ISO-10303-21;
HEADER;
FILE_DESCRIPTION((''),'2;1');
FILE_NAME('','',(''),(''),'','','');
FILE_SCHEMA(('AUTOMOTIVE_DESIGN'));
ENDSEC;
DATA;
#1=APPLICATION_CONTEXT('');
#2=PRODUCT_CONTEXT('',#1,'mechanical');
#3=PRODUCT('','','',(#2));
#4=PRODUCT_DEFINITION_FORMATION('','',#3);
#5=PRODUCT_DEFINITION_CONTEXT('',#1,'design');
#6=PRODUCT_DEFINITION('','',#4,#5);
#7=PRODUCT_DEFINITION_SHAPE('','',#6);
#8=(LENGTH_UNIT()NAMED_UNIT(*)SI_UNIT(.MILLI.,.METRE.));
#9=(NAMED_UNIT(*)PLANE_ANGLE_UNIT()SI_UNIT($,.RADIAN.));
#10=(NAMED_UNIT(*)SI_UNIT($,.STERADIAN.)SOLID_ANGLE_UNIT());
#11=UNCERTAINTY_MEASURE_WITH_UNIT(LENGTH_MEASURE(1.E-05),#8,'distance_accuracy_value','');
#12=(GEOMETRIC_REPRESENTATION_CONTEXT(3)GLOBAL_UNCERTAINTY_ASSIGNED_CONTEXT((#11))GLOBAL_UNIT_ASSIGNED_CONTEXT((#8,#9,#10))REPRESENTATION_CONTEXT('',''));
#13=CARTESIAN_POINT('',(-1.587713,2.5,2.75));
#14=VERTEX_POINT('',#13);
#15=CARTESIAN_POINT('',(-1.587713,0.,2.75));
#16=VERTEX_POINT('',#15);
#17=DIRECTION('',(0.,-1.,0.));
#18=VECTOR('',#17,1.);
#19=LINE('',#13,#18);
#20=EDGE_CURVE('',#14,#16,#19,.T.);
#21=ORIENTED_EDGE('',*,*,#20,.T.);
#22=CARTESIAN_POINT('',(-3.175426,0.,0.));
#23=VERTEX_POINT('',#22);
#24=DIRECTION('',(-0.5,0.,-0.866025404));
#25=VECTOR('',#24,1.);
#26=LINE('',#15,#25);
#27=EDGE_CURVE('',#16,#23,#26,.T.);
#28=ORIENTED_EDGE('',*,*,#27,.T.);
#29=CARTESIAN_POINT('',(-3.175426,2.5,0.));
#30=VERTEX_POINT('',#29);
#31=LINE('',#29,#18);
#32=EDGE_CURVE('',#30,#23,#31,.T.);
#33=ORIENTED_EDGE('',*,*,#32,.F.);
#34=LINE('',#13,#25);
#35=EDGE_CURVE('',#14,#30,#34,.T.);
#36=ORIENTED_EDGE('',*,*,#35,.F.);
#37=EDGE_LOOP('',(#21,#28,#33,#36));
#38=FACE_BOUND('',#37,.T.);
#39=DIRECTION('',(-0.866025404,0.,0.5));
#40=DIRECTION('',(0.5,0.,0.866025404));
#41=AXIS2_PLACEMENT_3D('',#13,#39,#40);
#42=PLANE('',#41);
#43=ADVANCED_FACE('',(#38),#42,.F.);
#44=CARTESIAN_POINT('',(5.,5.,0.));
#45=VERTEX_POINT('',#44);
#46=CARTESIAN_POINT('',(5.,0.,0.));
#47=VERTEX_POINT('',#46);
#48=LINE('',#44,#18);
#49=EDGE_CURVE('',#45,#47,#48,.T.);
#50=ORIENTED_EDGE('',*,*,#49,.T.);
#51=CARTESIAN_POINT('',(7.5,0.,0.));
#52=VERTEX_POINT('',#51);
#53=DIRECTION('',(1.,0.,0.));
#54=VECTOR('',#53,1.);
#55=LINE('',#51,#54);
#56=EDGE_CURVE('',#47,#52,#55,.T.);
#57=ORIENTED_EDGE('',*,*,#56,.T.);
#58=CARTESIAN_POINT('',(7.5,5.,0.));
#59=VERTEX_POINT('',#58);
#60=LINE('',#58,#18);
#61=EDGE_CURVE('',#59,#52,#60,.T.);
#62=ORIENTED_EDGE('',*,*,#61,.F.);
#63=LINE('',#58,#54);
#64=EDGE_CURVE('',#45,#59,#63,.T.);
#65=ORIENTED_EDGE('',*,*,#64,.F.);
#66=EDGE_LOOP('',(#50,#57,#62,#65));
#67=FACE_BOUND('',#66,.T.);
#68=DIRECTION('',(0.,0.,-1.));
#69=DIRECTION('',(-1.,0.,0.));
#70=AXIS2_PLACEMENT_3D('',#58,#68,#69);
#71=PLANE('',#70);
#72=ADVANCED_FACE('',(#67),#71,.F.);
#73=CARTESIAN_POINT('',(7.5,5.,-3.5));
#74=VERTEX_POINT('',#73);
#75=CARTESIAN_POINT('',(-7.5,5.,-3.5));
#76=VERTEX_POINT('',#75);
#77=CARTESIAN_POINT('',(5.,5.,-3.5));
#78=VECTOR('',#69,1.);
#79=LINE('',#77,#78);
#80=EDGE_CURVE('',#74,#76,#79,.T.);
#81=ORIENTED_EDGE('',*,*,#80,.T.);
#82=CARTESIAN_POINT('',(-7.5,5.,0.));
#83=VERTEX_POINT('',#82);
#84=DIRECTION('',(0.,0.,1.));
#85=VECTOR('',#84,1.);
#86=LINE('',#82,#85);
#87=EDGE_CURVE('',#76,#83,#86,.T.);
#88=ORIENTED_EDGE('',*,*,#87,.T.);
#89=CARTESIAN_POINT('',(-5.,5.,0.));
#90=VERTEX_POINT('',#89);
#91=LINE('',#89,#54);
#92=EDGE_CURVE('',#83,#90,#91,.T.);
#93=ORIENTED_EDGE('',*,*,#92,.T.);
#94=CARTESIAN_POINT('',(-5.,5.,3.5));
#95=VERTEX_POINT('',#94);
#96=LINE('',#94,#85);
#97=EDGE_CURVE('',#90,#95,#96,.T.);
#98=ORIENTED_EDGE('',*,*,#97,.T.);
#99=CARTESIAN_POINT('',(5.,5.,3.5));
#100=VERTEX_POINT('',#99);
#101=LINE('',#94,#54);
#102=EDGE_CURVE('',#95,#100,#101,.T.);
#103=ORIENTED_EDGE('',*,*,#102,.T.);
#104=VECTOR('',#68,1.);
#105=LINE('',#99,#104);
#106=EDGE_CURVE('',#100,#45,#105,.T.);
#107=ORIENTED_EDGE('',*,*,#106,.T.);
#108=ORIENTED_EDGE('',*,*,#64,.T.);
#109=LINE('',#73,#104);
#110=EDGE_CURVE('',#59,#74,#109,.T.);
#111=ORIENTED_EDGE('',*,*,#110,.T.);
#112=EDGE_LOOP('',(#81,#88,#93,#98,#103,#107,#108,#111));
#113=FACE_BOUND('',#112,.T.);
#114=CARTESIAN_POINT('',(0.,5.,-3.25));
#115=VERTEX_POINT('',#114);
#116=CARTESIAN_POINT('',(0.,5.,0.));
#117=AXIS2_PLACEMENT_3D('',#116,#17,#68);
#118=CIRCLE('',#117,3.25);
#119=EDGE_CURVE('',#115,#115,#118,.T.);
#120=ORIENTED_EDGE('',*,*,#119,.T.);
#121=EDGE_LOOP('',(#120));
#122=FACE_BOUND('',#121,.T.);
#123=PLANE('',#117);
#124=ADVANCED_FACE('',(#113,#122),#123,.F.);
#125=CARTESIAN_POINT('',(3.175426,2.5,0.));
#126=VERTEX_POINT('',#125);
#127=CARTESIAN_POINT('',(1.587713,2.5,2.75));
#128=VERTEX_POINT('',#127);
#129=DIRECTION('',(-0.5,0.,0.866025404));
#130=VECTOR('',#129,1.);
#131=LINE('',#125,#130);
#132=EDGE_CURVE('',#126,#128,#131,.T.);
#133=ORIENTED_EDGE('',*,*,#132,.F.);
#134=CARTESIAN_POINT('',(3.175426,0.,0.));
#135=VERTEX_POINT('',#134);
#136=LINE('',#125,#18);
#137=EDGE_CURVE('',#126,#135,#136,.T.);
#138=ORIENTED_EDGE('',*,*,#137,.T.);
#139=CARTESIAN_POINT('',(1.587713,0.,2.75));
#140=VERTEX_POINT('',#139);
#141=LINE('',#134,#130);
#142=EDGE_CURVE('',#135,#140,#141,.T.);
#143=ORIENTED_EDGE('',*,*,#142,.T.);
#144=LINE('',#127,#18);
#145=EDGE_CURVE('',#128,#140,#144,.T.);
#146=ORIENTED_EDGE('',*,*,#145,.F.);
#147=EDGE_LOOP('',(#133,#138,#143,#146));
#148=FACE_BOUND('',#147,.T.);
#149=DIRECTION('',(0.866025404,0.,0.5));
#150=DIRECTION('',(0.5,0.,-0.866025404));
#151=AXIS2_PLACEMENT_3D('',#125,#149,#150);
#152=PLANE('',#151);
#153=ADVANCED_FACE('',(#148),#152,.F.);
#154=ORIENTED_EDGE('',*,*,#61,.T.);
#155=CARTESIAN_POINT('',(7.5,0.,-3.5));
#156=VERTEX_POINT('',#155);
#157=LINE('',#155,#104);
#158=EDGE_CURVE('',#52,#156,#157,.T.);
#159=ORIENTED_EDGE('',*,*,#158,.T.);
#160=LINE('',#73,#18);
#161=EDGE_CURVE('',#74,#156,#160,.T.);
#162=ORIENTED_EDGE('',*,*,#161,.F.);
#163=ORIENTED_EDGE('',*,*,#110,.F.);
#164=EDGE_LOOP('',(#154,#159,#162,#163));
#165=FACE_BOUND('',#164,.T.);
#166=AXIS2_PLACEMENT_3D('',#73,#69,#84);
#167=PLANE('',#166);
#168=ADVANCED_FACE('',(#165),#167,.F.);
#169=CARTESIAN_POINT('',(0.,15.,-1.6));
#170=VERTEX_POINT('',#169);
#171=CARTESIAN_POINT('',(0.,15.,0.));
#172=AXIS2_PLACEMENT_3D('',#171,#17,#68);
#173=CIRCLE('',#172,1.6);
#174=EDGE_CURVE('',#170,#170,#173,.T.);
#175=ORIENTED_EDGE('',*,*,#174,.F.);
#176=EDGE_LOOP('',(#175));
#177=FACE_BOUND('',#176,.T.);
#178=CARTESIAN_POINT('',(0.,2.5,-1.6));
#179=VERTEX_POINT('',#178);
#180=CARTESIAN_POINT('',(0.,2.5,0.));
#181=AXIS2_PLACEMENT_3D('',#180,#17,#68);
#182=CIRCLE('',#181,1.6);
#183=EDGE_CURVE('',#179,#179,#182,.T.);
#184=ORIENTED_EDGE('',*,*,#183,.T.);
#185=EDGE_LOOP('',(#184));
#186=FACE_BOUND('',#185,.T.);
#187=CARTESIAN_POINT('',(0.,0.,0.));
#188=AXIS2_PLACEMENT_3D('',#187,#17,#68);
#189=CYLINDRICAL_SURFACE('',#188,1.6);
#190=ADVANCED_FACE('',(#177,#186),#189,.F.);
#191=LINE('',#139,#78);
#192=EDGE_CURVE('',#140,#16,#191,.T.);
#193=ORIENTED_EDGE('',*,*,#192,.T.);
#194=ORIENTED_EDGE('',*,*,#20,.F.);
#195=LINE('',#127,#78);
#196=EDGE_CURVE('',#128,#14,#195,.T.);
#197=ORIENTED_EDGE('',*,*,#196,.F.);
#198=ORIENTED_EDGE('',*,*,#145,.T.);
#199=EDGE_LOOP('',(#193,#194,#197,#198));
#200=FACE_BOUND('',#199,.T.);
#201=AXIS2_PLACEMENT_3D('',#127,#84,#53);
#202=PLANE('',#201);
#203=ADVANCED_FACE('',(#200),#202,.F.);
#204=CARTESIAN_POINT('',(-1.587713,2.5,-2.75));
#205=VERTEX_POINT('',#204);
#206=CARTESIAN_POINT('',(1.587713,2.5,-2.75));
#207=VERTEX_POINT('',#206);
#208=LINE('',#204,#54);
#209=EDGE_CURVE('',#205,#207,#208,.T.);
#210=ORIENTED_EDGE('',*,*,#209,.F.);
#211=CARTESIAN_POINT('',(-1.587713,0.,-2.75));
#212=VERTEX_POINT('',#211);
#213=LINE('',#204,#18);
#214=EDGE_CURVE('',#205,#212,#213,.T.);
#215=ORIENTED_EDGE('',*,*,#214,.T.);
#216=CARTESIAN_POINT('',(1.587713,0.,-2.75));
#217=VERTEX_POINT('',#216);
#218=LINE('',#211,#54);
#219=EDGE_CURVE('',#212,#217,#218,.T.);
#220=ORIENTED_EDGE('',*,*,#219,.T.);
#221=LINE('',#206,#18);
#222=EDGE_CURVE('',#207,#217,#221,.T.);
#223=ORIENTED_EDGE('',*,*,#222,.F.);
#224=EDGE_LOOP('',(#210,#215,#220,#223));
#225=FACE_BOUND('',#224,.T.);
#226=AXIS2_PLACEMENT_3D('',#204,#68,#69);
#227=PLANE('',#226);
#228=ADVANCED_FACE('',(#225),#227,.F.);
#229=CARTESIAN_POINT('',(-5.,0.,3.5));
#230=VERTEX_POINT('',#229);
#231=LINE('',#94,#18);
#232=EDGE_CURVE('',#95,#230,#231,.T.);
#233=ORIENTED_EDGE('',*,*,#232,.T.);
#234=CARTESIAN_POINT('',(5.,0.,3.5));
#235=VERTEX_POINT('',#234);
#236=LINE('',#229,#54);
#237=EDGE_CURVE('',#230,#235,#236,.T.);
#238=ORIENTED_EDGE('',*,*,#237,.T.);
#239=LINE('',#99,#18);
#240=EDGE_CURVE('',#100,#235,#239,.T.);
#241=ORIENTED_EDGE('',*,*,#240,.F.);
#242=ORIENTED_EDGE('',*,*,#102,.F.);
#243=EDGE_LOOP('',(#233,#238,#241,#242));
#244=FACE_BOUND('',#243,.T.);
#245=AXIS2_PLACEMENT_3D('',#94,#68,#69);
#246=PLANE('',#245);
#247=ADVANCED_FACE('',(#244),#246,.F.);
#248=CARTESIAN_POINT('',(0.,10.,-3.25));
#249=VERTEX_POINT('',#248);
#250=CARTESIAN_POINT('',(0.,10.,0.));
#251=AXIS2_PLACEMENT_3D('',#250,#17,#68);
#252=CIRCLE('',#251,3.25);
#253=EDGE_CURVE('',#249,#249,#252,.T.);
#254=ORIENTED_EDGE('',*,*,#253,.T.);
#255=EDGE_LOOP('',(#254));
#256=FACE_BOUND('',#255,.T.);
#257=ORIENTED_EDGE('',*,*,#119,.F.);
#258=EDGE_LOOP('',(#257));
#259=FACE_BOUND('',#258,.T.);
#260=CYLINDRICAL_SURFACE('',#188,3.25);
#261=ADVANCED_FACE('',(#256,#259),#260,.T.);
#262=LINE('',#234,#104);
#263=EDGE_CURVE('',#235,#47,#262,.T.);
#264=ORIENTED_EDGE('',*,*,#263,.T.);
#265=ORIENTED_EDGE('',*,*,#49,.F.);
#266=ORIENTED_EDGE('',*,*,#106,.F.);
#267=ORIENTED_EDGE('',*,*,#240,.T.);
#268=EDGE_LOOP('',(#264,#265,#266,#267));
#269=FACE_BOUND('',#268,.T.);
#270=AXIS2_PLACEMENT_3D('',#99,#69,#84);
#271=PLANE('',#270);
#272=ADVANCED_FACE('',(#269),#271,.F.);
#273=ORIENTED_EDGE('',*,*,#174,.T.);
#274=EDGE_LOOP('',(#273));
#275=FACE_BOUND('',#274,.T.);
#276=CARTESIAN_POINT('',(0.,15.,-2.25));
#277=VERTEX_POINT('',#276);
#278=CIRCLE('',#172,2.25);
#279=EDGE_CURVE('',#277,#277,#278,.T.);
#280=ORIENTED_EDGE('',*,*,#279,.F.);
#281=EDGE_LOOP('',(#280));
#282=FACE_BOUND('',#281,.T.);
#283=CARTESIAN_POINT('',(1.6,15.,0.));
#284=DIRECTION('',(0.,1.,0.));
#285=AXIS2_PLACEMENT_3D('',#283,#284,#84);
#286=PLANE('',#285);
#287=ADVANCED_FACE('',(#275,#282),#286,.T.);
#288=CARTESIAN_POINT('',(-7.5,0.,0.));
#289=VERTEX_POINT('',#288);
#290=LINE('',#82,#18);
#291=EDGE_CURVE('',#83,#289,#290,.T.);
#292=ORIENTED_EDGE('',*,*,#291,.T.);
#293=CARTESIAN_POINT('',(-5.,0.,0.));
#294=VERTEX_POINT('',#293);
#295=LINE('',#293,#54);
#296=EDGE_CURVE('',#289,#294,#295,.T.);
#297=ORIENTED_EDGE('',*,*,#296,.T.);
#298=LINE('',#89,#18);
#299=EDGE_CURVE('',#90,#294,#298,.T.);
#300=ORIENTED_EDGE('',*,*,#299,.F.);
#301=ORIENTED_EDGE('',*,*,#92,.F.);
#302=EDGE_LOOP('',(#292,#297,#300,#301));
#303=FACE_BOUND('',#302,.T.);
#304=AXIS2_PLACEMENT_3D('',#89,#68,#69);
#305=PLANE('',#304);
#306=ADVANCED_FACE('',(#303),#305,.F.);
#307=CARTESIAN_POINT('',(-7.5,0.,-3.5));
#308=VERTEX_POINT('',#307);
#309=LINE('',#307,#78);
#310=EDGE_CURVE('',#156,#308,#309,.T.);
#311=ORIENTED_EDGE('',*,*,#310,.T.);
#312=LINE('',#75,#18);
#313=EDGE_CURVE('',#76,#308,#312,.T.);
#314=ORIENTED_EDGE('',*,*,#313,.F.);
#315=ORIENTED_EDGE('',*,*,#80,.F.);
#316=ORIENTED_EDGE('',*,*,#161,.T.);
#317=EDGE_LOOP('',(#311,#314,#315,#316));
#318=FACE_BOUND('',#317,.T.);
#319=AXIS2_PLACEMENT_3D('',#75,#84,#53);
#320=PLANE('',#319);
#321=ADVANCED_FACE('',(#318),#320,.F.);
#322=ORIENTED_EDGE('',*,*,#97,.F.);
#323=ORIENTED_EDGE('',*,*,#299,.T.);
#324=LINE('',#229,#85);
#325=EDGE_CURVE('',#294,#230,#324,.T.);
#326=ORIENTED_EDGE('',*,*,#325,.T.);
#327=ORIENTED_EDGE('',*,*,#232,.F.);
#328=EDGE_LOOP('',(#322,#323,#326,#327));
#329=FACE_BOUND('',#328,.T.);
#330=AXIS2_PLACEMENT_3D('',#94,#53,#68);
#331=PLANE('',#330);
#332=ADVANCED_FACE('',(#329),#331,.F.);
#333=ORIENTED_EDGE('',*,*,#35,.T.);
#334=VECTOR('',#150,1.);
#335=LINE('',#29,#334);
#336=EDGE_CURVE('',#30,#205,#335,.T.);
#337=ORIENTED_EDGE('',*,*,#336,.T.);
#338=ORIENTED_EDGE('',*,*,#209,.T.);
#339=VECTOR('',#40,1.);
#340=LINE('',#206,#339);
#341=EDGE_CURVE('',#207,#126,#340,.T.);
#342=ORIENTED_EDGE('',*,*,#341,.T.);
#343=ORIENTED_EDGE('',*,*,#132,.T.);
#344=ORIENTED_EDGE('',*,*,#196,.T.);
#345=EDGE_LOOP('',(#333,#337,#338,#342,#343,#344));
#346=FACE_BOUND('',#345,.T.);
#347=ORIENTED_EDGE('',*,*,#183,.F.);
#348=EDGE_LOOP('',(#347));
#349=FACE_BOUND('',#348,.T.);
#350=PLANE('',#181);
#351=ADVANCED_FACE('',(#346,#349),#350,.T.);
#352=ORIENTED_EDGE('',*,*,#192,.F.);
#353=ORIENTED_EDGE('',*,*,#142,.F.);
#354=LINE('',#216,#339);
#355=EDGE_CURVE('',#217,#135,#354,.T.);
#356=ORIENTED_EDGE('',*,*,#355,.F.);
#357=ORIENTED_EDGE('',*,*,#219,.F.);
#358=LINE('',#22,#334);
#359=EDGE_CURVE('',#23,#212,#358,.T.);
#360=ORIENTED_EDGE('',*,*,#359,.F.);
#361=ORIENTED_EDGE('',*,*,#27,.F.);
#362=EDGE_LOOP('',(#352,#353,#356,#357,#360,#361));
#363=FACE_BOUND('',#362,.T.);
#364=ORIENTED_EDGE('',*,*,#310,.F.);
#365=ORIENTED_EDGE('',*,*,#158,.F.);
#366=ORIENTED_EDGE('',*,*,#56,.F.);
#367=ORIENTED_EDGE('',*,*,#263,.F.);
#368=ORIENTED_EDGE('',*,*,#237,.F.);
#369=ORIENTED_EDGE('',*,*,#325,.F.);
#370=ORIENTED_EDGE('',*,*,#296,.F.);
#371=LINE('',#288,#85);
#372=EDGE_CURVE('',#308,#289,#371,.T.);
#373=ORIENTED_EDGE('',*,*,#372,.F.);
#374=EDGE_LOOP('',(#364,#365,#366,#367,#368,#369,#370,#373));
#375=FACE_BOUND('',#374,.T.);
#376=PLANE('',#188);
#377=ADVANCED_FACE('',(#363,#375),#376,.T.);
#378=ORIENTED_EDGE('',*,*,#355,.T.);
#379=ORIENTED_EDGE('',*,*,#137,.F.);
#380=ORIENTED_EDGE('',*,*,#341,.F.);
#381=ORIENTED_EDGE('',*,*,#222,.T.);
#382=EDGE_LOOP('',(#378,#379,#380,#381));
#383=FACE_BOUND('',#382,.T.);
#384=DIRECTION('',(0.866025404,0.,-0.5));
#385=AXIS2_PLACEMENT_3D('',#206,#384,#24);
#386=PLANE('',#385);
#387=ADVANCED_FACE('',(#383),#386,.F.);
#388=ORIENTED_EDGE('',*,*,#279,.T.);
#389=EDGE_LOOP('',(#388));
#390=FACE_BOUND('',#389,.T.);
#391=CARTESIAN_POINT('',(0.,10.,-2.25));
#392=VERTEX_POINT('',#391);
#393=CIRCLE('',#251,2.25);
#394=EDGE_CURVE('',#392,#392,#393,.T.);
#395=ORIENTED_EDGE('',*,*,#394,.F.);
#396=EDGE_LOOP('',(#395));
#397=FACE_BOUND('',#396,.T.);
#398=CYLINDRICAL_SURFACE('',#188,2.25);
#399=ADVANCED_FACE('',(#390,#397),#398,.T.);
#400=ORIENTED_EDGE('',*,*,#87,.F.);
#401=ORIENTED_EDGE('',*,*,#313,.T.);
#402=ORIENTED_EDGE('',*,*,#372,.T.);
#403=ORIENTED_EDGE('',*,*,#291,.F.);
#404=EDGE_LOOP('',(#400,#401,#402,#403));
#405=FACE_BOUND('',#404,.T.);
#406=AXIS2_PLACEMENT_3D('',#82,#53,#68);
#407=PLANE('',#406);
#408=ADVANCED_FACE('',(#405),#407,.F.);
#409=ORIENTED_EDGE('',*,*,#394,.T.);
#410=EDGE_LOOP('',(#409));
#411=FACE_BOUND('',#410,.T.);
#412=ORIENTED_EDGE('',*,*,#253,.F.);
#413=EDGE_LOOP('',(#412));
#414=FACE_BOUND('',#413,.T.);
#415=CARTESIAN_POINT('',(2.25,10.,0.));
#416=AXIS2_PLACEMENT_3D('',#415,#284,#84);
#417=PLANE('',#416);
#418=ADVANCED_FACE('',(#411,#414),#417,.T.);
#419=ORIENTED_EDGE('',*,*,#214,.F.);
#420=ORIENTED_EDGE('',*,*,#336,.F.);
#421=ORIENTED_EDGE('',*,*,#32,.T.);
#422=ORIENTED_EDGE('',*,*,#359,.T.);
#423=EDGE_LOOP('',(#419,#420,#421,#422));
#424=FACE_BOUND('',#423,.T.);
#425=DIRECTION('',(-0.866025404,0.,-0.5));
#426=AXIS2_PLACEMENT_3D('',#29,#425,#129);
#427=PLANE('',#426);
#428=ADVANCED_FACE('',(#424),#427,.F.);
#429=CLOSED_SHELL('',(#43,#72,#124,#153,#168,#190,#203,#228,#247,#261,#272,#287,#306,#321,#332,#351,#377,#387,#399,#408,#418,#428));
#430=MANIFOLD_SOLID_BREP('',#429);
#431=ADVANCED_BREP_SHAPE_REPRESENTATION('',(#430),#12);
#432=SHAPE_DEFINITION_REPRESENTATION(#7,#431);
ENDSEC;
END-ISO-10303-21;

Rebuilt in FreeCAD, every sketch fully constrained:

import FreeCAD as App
import Part
import Sketcher
Q = App.Units.Quantity

doc = App.newDocument("Part")
body = doc.addObject("PartDesign::Body", "Body")

# Sketch on XZ plane
sketch1 = body.newObject("Sketcher::SketchObject", "Sketch")
sketch1.AttachmentSupport = (doc.getObject("XZ_Plane"), [""])
sketch1.MapMode = "FlatFace"
sketch1.addGeometry(Part.LineSegment(App.Vector(-7.5, 0, 0), App.Vector(-5, 0, 0)), False)
sketch1.addGeometry(Part.LineSegment(App.Vector(-5, 0, 0), App.Vector(-5, 3.5, 0)), False)
sketch1.addGeometry(Part.LineSegment(App.Vector(-5, 3.5, 0), App.Vector(5, 3.5, 0)), False)
sketch1.addGeometry(Part.LineSegment(App.Vector(5, 3.5, 0), App.Vector(5, 0, 0)), False)
sketch1.addGeometry(Part.LineSegment(App.Vector(5, 0, 0), App.Vector(7.5, 0, 0)), False)
sketch1.addGeometry(Part.LineSegment(App.Vector(7.5, 0, 0), App.Vector(7.5, -3.5, 0)), False)
sketch1.addGeometry(Part.LineSegment(App.Vector(7.5, -3.5, 0), App.Vector(-7.5, -3.5, 0)), False)
sketch1.addGeometry(Part.LineSegment(App.Vector(-7.5, -3.5, 0), App.Vector(-7.5, 0, 0)), False)
sketch1.addConstraint(Sketcher.Constraint("Coincident", 0, 2, 1, 1))
sketch1.addConstraint(Sketcher.Constraint("Coincident", 1, 2, 2, 1))
sketch1.addConstraint(Sketcher.Constraint("Coincident", 2, 2, 3, 1))
sketch1.addConstraint(Sketcher.Constraint("Coincident", 3, 2, 4, 1))
sketch1.addConstraint(Sketcher.Constraint("Coincident", 4, 2, 5, 1))
sketch1.addConstraint(Sketcher.Constraint("Coincident", 5, 2, 6, 1))
sketch1.addConstraint(Sketcher.Constraint("Coincident", 6, 2, 7, 1))
sketch1.addConstraint(Sketcher.Constraint("Coincident", 7, 2, 0, 1))
sketch1.addConstraint(Sketcher.Constraint("Horizontal", 0))
sketch1.addConstraint(Sketcher.Constraint("Vertical", 1))
sketch1.addConstraint(Sketcher.Constraint("Horizontal", 2))
sketch1.addConstraint(Sketcher.Constraint("Vertical", 3))
sketch1.addConstraint(Sketcher.Constraint("Horizontal", 4))
sketch1.addConstraint(Sketcher.Constraint("Vertical", 5))
sketch1.addConstraint(Sketcher.Constraint("Horizontal", 6))
sketch1.addConstraint(Sketcher.Constraint("Vertical", 7))
sketch1.addConstraint(Sketcher.Constraint("Symmetric", 0, 2, 3, 2, -1, 1))
sketch1.addConstraint(Sketcher.Constraint("Symmetric", 4, 2, 7, 2, -2))
sketch1.addConstraint(Sketcher.Constraint("Equal", 3, 5))
sketch1.addConstraint(Sketcher.Constraint("DistanceX", 2, 1, 2, 2, 10.0))
sketch1.addConstraint(Sketcher.Constraint("DistanceX", 6, 2, 6, 1, 15.0))
sketch1.addConstraint(Sketcher.Constraint("DistanceY", 1, 1, 1, 2, 3.5))
pad1 = body.newObject("PartDesign::Pad", "Pad")
pad1.Profile = sketch1
pad1.Length = 5
pad1.Reversed = True

# Sketch on XZ plane
sketch2 = body.newObject("Sketcher::SketchObject", "Sketch001")
sketch2.AttachmentSupport = (doc.getObject("XZ_Plane"), [""])
sketch2.MapMode = "FlatFace"
sketch2.addGeometry(Part.LineSegment(App.Vector(3.175426, 0, 0), App.Vector(1.587713, 2.75, 0)), False)
sketch2.addGeometry(Part.LineSegment(App.Vector(1.587713, 2.75, 0), App.Vector(-1.587713, 2.75, 0)), False)
sketch2.addGeometry(Part.LineSegment(App.Vector(-1.587713, 2.75, 0), App.Vector(-3.175426, 0, 0)), False)
sketch2.addGeometry(Part.LineSegment(App.Vector(-3.175426, 0, 0), App.Vector(-1.587713, -2.75, 0)), False)
sketch2.addGeometry(Part.LineSegment(App.Vector(-1.587713, -2.75, 0), App.Vector(1.587713, -2.75, 0)), False)
sketch2.addGeometry(Part.LineSegment(App.Vector(1.587713, -2.75, 0), App.Vector(3.175426, 0, 0)), False)
sketch2.addConstraint(Sketcher.Constraint("Coincident", 0, 2, 1, 1))
sketch2.addConstraint(Sketcher.Constraint("Coincident", 1, 2, 2, 1))
sketch2.addConstraint(Sketcher.Constraint("Coincident", 2, 2, 3, 1))
sketch2.addConstraint(Sketcher.Constraint("Coincident", 3, 2, 4, 1))
sketch2.addConstraint(Sketcher.Constraint("Coincident", 4, 2, 5, 1))
sketch2.addConstraint(Sketcher.Constraint("Coincident", 5, 2, 0, 1))
sketch2.addConstraint(Sketcher.Constraint("Horizontal", 1))
sketch2.addConstraint(Sketcher.Constraint("Horizontal", 4))
sketch2.addConstraint(Sketcher.Constraint("Symmetric", 0, 2, 3, 2, -1, 1))
sketch2.addConstraint(Sketcher.Constraint("Symmetric", 2, 2, 5, 2, -1, 1))
sketch2.addConstraint(Sketcher.Constraint("PointOnObject", 2, 2, -1))
sketch2.addConstraint(Sketcher.Constraint("Parallel", 2, 5))
sketch2.addConstraint(Sketcher.Constraint("Vertical", 1, 2, 3, 2))
sketch2.addConstraint(Sketcher.Constraint("Angle", 0, Q("120 deg")))
sketch2.addConstraint(Sketcher.Constraint("DistanceY", 3, 2, 1, 2, 5.5))
sketch2.addConstraint(Sketcher.Constraint("DistanceX", 1, 2, 1, 1, 3.175426))
pocket1 = body.newObject("PartDesign::Pocket", "Pocket")
pocket1.Profile = sketch2
pocket1.Length = 2.5

# Sketch on XY plane
sketch3 = body.newObject("Sketcher::SketchObject", "Sketch002")
sketch3.AttachmentSupport = (doc.getObject("XY_Plane"), [""])
sketch3.MapMode = "FlatFace"
sketch3.addGeometry(Part.LineSegment(App.Vector(1.6, 15, 0), App.Vector(1.6, 5, 0)), False)
sketch3.addGeometry(Part.LineSegment(App.Vector(1.6, 5, 0), App.Vector(3.25, 5, 0)), False)
sketch3.addGeometry(Part.LineSegment(App.Vector(3.25, 5, 0), App.Vector(3.25, 10, 0)), False)
sketch3.addGeometry(Part.LineSegment(App.Vector(3.25, 10, 0), App.Vector(2.25, 10, 0)), False)
sketch3.addGeometry(Part.LineSegment(App.Vector(2.25, 10, 0), App.Vector(2.25, 15, 0)), False)
sketch3.addGeometry(Part.LineSegment(App.Vector(2.25, 15, 0), App.Vector(1.6, 15, 0)), False)
sketch3.addConstraint(Sketcher.Constraint("Coincident", 0, 2, 1, 1))
sketch3.addConstraint(Sketcher.Constraint("Coincident", 1, 2, 2, 1))
sketch3.addConstraint(Sketcher.Constraint("Coincident", 2, 2, 3, 1))
sketch3.addConstraint(Sketcher.Constraint("Coincident", 3, 2, 4, 1))
sketch3.addConstraint(Sketcher.Constraint("Coincident", 4, 2, 5, 1))
sketch3.addConstraint(Sketcher.Constraint("Coincident", 5, 2, 0, 1))
sketch3.addConstraint(Sketcher.Constraint("Vertical", 0))
sketch3.addConstraint(Sketcher.Constraint("Horizontal", 1))
sketch3.addConstraint(Sketcher.Constraint("Vertical", 2))
sketch3.addConstraint(Sketcher.Constraint("Horizontal", 3))
sketch3.addConstraint(Sketcher.Constraint("Vertical", 4))
sketch3.addConstraint(Sketcher.Constraint("Horizontal", 5))
sketch3.addConstraint(Sketcher.Constraint("Equal", 2, 4))
sketch3.addConstraint(Sketcher.Constraint("DistanceX", 3, 2, 3, 1, 1.0))
sketch3.addConstraint(Sketcher.Constraint("DistanceY", 0, 2, 0, 1, 10.0))
sketch3.addConstraint(Sketcher.Constraint("DistanceY", -1, 1, 0, 2, 5.0))
sketch3.addConstraint(Sketcher.Constraint("DistanceX", 1, 1, 1, 2, 1.65))
sketch3.addConstraint(Sketcher.Constraint("DistanceX", -1, 1, 0, 2, 1.6))
revolution = body.newObject("PartDesign::Revolution", "Revolution")
revolution.Profile = sketch3
revolution.ReferenceAxis = (sketch3, ["V_Axis"])
revolution.Angle = 360

# Sketch on XZ plane
sketch4 = body.newObject("Sketcher::SketchObject", "Sketch003")
sketch4.AttachmentSupport = (doc.getObject("XZ_Plane"), [""])
sketch4.MapMode = "FlatFace"
sketch4.AttachmentOffset = App.Placement(App.Vector(0, 0, -2.5), App.Rotation())
sketch4.addGeometry(Part.Circle(App.Vector(0, 0, 0), App.Vector(0, 0, 1), 1.6), False)
sketch4.addConstraint(Sketcher.Constraint("Coincident", 0, 3, -1, 1))
sketch4.addConstraint(Sketcher.Constraint("Diameter", 0, 3.2))
pocket2 = body.newObject("PartDesign::Pocket", "Pocket001")
pocket2.Profile = sketch4
pocket2.Type = "ThroughAll"

doc.recompute()
